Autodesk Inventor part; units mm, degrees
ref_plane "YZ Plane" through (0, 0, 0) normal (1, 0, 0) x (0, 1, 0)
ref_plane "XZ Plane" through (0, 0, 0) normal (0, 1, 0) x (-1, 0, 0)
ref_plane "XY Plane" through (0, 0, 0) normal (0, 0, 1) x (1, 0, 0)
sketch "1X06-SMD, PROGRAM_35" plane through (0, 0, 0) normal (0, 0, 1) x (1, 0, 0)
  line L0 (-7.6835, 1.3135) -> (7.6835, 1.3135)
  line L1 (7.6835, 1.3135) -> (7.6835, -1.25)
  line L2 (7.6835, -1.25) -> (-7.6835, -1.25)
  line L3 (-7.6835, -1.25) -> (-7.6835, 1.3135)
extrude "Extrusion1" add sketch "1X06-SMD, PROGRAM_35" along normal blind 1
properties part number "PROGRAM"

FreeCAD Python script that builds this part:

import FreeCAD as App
import Part
import Sketcher
Q = App.Units.Quantity

doc = App.newDocument("Part")
body = doc.addObject("PartDesign::Body", "Body")

# Sketch on XY plane
sketch1 = body.newObject("Sketcher::SketchObject", "Sketch")
sketch1.AttachmentSupport = (doc.getObject("XY_Plane"), [""])
sketch1.MapMode = "FlatFace"
sketch1.addGeometry([
    Part.LineSegment(App.Vector(7.6835, 1.3135, 0), App.Vector(-7.6835, 1.3135, 0)),
    Part.LineSegment(App.Vector(-7.6835, 1.3135, 0), App.Vector(-7.6835, -1.25, 0)),
    Part.LineSegment(App.Vector(-7.6835, -1.25, 0), App.Vector(7.6835, -1.25, 0)),
    Part.LineSegment(App.Vector(7.6835, -1.25, 0), App.Vector(7.6835, 1.3135, 0)),
], False)
sketch1.addConstraint([
    Sketcher.Constraint("Coincident", 0, 2, 1, 1),
    Sketcher.Constraint("Coincident", 1, 2, 2, 1),
    Sketcher.Constraint("Coincident", 2, 2, 3, 1),
    Sketcher.Constraint("Coincident", 3, 2, 0, 1),
    Sketcher.Constraint("Horizontal", 0),
    Sketcher.Constraint("Vertical", 1),
    Sketcher.Constraint("Horizontal", 2),
    Sketcher.Constraint("Vertical", 3),
    Sketcher.Constraint("DistanceX", 0, 2, 0, 1, Q("15.367 mm")),
    Sketcher.Constraint("DistanceY", 1, 2, -1, 1, Q("1.25 mm")),
    Sketcher.Constraint("DistanceY", 1, 2, 1, 1, Q("2.5635 mm")),
    Sketcher.Constraint("DistanceX", 0, 2, -1, 1, Q("7.6835 mm")),
])
pad1 = body.newObject("PartDesign::Pad", "Pad")
pad1.Profile = sketch1
pad1.Length = 1

doc.recompute()
